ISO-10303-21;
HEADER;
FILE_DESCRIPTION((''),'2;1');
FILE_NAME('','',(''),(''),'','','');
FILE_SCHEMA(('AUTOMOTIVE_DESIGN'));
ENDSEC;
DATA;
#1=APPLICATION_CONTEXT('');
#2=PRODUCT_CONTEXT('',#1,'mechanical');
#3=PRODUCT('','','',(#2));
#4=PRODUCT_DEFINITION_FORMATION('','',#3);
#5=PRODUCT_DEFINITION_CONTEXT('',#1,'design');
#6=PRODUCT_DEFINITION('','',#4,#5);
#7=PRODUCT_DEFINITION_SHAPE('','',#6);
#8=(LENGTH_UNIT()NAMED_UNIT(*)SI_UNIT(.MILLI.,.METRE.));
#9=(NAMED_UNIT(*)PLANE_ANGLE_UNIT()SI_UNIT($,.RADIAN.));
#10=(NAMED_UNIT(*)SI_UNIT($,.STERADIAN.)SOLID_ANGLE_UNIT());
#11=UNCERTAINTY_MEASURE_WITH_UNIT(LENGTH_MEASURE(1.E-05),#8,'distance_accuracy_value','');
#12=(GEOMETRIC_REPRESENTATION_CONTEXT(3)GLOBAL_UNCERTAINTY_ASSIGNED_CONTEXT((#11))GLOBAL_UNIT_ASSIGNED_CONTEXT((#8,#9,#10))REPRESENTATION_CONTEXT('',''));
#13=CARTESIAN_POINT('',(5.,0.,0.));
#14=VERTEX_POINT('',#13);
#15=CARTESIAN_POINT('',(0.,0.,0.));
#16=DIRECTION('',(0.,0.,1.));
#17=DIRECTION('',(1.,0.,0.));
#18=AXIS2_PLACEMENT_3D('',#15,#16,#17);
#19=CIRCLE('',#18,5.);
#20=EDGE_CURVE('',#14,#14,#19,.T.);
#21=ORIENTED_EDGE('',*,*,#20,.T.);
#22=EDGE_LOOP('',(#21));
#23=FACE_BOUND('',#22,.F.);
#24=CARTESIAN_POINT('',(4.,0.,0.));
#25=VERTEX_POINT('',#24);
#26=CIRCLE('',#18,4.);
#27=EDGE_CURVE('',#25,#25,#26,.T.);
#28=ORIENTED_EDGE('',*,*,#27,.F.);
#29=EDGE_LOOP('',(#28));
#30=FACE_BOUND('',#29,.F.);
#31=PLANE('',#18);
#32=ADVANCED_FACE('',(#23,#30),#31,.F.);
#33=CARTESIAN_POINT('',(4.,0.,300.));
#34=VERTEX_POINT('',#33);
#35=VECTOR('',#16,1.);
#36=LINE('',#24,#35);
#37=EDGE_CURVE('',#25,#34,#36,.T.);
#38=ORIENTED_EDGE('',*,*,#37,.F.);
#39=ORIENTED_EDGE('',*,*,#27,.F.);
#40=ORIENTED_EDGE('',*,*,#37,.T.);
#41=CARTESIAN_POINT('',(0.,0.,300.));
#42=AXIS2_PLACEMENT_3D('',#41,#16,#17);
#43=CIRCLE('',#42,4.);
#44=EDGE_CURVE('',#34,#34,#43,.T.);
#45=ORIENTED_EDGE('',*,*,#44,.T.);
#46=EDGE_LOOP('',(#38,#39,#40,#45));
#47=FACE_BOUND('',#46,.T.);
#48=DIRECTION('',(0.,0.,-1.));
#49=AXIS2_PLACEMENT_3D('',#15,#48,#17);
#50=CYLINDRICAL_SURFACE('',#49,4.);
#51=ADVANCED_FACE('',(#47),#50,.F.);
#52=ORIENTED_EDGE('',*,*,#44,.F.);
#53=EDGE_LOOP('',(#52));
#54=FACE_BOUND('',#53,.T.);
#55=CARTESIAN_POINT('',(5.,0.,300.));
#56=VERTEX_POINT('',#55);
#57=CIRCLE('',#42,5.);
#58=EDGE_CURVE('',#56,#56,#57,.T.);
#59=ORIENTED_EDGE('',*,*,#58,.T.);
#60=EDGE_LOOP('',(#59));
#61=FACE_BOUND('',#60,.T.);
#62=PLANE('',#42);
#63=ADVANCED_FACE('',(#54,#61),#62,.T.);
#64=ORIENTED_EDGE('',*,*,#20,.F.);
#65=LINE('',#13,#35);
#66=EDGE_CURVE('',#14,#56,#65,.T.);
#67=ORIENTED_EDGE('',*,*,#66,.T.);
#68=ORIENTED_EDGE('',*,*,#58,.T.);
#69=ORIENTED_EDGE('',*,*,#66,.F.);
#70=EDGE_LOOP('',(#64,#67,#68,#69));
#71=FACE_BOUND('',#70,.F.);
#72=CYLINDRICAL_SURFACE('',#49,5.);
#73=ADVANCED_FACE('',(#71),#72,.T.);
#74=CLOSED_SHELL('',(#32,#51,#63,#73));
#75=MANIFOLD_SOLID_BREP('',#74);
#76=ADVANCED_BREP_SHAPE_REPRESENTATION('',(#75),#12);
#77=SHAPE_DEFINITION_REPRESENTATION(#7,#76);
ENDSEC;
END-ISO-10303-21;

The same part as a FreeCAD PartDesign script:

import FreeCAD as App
import Part
import Sketcher

V = App.Vector

doc = App.newDocument("Part")
params = doc.addObject("Spreadsheet::Sheet", "Params")
for row, (alias, value) in enumerate([
    ("sketch1_diameter", "10 mm"),
    ("sketch1_diameter2", "8 mm"),
    ("pad1_length", "300 mm"),
], start=1):
    params.set(f"A{row}", alias)
    params.set(f"B{row}", "=" + value)
    params.setAlias(f"B{row}", alias)

body = doc.addObject("PartDesign::Body", "Body")

# Sketch on XY plane
sketch1 = doc.addObject("Sketcher::SketchObject", "Sketch")
body.addObject(sketch1)
sketch1.AttachmentSupport = (doc.XY_Plane, [""])
sketch1.MapMode = "FlatFace"
sketch1.addGeometry([
    Part.Circle(V(0, 0, 0), V(0, 0, 1), 5),
    Part.Circle(V(0, 0, 0), V(0, 0, 1), 4),
], False)
sketch1.addConstraint([
    Sketcher.Constraint("Coincident", 0, 3, -1, 1),
    Sketcher.Constraint("Coincident", 1, 3, -1, 1),
    Sketcher.Constraint("Diameter", 0, 10.0),
    Sketcher.Constraint("Diameter", 1, 8.0),
])
sketch1.setExpression("Constraints[2]", "Params.sketch1_diameter")
sketch1.setExpression("Constraints[3]", "Params.sketch1_diameter2")
pad1 = doc.addObject("PartDesign::Pad", "Pad")
body.addObject(pad1)
pad1.Profile = sketch1
pad1.setExpression("Length", "Params.pad1_length")

doc.recompute()
